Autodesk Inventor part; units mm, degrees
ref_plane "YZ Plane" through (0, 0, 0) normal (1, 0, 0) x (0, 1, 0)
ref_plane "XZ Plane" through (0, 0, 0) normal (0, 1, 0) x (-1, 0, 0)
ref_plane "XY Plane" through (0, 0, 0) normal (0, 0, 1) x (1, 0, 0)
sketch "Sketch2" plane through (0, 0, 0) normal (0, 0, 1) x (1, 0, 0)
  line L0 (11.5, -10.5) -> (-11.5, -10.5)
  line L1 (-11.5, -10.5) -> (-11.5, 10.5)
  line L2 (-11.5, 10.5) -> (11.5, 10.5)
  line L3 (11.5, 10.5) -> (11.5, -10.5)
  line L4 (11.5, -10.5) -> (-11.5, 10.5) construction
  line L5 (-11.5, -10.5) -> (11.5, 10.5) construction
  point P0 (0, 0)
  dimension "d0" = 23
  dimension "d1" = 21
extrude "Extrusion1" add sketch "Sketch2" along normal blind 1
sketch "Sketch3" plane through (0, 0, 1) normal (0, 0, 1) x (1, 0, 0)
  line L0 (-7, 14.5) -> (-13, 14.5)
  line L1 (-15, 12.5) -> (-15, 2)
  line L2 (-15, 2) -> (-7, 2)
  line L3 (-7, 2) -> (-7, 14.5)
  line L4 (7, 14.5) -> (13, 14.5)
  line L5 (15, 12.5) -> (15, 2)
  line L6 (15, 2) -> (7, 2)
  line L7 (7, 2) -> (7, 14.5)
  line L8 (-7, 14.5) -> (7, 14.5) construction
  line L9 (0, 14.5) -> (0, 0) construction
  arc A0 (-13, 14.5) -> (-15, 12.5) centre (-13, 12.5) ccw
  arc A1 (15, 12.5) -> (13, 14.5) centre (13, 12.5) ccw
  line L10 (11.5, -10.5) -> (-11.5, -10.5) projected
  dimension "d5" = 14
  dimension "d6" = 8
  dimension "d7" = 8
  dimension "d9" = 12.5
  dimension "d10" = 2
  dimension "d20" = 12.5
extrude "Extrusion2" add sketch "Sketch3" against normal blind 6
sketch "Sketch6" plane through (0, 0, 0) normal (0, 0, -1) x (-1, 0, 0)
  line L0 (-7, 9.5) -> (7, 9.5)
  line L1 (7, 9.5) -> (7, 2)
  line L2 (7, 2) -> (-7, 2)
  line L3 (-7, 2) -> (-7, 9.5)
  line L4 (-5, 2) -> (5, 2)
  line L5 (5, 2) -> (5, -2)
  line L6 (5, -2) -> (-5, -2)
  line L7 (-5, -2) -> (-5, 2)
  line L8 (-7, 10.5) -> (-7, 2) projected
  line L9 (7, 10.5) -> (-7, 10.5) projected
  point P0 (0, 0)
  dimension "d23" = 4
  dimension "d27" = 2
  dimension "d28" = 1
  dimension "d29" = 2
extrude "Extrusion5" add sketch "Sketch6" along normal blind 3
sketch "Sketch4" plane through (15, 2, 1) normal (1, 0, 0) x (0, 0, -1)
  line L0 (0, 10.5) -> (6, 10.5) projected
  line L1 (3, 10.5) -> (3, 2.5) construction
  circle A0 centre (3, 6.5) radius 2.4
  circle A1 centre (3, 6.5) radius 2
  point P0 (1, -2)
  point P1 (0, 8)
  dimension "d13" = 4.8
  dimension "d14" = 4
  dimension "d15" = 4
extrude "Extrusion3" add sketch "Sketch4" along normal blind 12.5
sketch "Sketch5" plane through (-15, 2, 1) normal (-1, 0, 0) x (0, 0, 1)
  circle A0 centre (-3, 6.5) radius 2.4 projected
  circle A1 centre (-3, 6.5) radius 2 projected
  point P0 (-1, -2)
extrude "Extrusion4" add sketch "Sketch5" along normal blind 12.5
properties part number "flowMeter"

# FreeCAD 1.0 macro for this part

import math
import FreeCAD as App
import Part
import Sketcher
from FreeCAD import Vector


def add_polygon(sketch, points):
    """Adds a closed chain of lines whose ends are joined by coincident constraints."""
    first, n = sketch.GeometryCount, len(points)
    for a, b in zip(points, points[1:] + points[:1]):
        sketch.addGeometry(Part.LineSegment(App.Vector(*a, 0), App.Vector(*b, 0)), False)
    for i in range(n):
        sketch.addConstraint(Sketcher.Constraint("Coincident", first + i, 2, first + (i + 1) % n, 1))

doc = App.newDocument("Part")
body = doc.addObject("PartDesign::Body", "Body")

sketch1 = doc.addObject("Sketcher::SketchObject", "Sketch")
body.addObject(sketch1)
sketch1.AttachmentSupport = (doc.XY_Plane, [""])
sketch1.MapMode = "FlatFace"
add_polygon(sketch1, [(-12, -10), (12, -10), (12, 10), (-12, 10)])
sketch1.addConstraint([
    Sketcher.Constraint("Horizontal", 0),
    Sketcher.Constraint("Vertical", 1),
    Sketcher.Constraint("Horizontal", 2),
    Sketcher.Constraint("Vertical", 3),
    Sketcher.Constraint("Symmetric", 0, 2, 2, 2, -1, 1),
    Sketcher.Constraint("DistanceX", 0, 1, 0, 2, 23.0),
    Sketcher.Constraint("DistanceY", 1, 1, 1, 2, 21.0),
])
pad1 = doc.addObject("PartDesign::Pad", "Pad")
body.addObject(pad1)
pad1.Profile = sketch1
pad1.Length = 1

sketch2 = doc.addObject("Sketcher::SketchObject", "Sketch001")
body.addObject(sketch2)
sketch2.AttachmentSupport = (doc.XY_Plane, [""])
sketch2.MapMode = "FlatFace"
sketch2.AttachmentOffset = App.Placement(Vector(0, 0, 1), App.Rotation())
sketch2.addGeometry([
    Part.LineSegment(Vector(-7, 2, 0), Vector(-7, 14.5, 0)),
    Part.LineSegment(Vector(-7, 14.5, 0), Vector(-13, 14.5, 0)),
    Part.ArcOfCircle(Part.Circle(Vector(-13, 12.5, 0), Vector(0, 0, 1), 2), math.radians(90), math.radians(180)),
    Part.LineSegment(Vector(-15, 12.5, 0), Vector(-15, 2, 0)),
    Part.LineSegment(Vector(-15, 2, 0), Vector(-7, 2, 0)),
    Part.LineSegment(Vector(13, 14.5, 0), Vector(7, 14.5, 0)),
    Part.LineSegment(Vector(7, 14.5, 0), Vector(7, 2, 0)),
    Part.LineSegment(Vector(7, 2, 0), Vector(15, 2, 0)),
    Part.LineSegment(Vector(15, 2, 0), Vector(15, 12.5, 0)),
    Part.ArcOfCircle(Part.Circle(Vector(13, 12.5, 0), Vector(0, 0, 1), 2), math.radians(0), math.radians(90)),
], False)
sketch2.addConstraint([
    Sketcher.Constraint("Coincident", 0, 2, 1, 1),
    Sketcher.Constraint("Tangent", 1, 2, 2, 1),
    Sketcher.Constraint("Tangent", 2, 2, 3, 1),
    Sketcher.Constraint("Coincident", 3, 2, 4, 1),
    Sketcher.Constraint("Coincident", 4, 2, 0, 1),
    Sketcher.Constraint("Coincident", 5, 2, 6, 1),
    Sketcher.Constraint("Coincident", 6, 2, 7, 1),
    Sketcher.Constraint("Coincident", 7, 2, 8, 1),
    Sketcher.Constraint("Tangent", 8, 2, 9, 1),
    Sketcher.Constraint("Tangent", 9, 2, 5, 1),
    Sketcher.Constraint("Vertical", 0),
    Sketcher.Constraint("Horizontal", 1),
    Sketcher.Constraint("Vertical", 3),
    Sketcher.Constraint("Horizontal", 4),
    Sketcher.Constraint("Horizontal", 5),
    Sketcher.Constraint("Vertical", 6),
    Sketcher.Constraint("Horizontal", 7),
    Sketcher.Constraint("Vertical", 8),
    Sketcher.Constraint("Equal", 2, 9),
    Sketcher.Constraint("Symmetric", 2, 3, 9, 3, -2),
    Sketcher.Constraint("Symmetric", 4, 2, 6, 2, -2),
    Sketcher.Constraint("Radius", 2, 2.0),
    Sketcher.Constraint("DistanceX", 4, 1, 4, 2, 8.0),
    Sketcher.Constraint("DistanceY", 0, 1, 0, 2, 12.5),
    Sketcher.Constraint("DistanceY", -1, 1, 3, 2, 2.0),
    Sketcher.Constraint("DistanceX", 0, 2, 5, 2, 14.0),
])
pad2 = doc.addObject("PartDesign::Pad", "Pad001")
body.addObject(pad2)
pad2.Profile = sketch2
pad2.Length = 6
pad2.Reversed = True

sketch3 = doc.addObject("Sketcher::SketchObject", "Sketch002")
body.addObject(sketch3)
sketch3.AttachmentSupport = (doc.XY_Plane, [""])
sketch3.MapMode = "FlatFace"
add_polygon(sketch3, [(-7, 9.5), (7, 9.5), (7, 2), (5, 2), (5, -2), (-5, -2), (-5, 2), (-7, 2)])
sketch3.addConstraint([
    Sketcher.Constraint("Horizontal", 0),
    Sketcher.Constraint("Vertical", 1),
    Sketcher.Constraint("Horizontal", 2),
    Sketcher.Constraint("Vertical", 3),
    Sketcher.Constraint("Horizontal", 4),
    Sketcher.Constraint("Vertical", 5),
    Sketcher.Constraint("Horizontal", 6),
    Sketcher.Constraint("Vertical", 7),
    Sketcher.Constraint("Symmetric", 2, 2, 4, 2, -1, 1),
    Sketcher.Constraint("Symmetric", 1, 2, 6, 2, -2),
    Sketcher.Constraint("DistanceX", 2, 2, 2, 1, 2.0),
    Sketcher.Constraint("DistanceY", 3, 2, 3, 1, 4.0),
    Sketcher.Constraint("DistanceX", 0, 1, 0, 2, 14.0),
    Sketcher.Constraint("DistanceY", 1, 2, 1, 1, 7.5),
])
pad3 = doc.addObject("PartDesign::Pad", "Pad002")
body.addObject(pad3)
pad3.Profile = sketch3
pad3.Length = 3
pad3.Reversed = True

sketch4 = doc.addObject("Sketcher::SketchObject", "Sketch003")
body.addObject(sketch4)
sketch4.AttachmentSupport = (doc.YZ_Plane, [""])
sketch4.MapMode = "FlatFace"
sketch4.AttachmentOffset = App.Placement(Vector(0, 0, 15), App.Rotation())
sketch4.addGeometry([
    Part.Circle(Vector(8.5, -2, 0), Vector(0, 0, 1), 2.4),
    Part.Circle(Vector(8.5, -2, 0), Vector(0, 0, 1), 2),
], False)
sketch4.addConstraint([
    Sketcher.Constraint("Coincident", 1, 3, 0, 3),
    Sketcher.Constraint("Diameter", 1, 4.0),
    Sketcher.Constraint("Diameter", 0, 4.8),
    Sketcher.Constraint("DistanceY", 0, 3, -1, 1, 2.0),
    Sketcher.Constraint("DistanceX", -1, 1, 0, 3, 8.5),
])
pad4 = doc.addObject("PartDesign::Pad", "Pad003")
body.addObject(pad4)
pad4.Profile = sketch4
pad4.Length = 12.5

sketch5 = doc.addObject("Sketcher::SketchObject", "Sketch004")
body.addObject(sketch5)
sketch5.AttachmentSupport = (doc.YZ_Plane, [""])
sketch5.MapMode = "FlatFace"
sketch5.AttachmentOffset = App.Placement(Vector(0, 0, -15), App.Rotation())
sketch5.addGeometry([
    Part.Circle(Vector(8.5, -2, 0), Vector(0, 0, 1), 2.4),
    Part.Circle(Vector(8.5, -2, 0), Vector(0, 0, 1), 2),
], False)
sketch5.addConstraint([
    Sketcher.Constraint("Coincident", 1, 3, 0, 3),
    Sketcher.Constraint("Diameter", 1, 4.0),
    Sketcher.Constraint("Diameter", 0, 4.8),
    Sketcher.Constraint("DistanceY", 0, 3, -1, 1, 2.0),
    Sketcher.Constraint("DistanceX", -1, 1, 0, 3, 8.5),
])
pad5 = doc.addObject("PartDesign::Pad", "Pad004")
body.addObject(pad5)
pad5.Profile = sketch5
pad5.Length = 12.5
pad5.Reversed = True

doc.recompute()
